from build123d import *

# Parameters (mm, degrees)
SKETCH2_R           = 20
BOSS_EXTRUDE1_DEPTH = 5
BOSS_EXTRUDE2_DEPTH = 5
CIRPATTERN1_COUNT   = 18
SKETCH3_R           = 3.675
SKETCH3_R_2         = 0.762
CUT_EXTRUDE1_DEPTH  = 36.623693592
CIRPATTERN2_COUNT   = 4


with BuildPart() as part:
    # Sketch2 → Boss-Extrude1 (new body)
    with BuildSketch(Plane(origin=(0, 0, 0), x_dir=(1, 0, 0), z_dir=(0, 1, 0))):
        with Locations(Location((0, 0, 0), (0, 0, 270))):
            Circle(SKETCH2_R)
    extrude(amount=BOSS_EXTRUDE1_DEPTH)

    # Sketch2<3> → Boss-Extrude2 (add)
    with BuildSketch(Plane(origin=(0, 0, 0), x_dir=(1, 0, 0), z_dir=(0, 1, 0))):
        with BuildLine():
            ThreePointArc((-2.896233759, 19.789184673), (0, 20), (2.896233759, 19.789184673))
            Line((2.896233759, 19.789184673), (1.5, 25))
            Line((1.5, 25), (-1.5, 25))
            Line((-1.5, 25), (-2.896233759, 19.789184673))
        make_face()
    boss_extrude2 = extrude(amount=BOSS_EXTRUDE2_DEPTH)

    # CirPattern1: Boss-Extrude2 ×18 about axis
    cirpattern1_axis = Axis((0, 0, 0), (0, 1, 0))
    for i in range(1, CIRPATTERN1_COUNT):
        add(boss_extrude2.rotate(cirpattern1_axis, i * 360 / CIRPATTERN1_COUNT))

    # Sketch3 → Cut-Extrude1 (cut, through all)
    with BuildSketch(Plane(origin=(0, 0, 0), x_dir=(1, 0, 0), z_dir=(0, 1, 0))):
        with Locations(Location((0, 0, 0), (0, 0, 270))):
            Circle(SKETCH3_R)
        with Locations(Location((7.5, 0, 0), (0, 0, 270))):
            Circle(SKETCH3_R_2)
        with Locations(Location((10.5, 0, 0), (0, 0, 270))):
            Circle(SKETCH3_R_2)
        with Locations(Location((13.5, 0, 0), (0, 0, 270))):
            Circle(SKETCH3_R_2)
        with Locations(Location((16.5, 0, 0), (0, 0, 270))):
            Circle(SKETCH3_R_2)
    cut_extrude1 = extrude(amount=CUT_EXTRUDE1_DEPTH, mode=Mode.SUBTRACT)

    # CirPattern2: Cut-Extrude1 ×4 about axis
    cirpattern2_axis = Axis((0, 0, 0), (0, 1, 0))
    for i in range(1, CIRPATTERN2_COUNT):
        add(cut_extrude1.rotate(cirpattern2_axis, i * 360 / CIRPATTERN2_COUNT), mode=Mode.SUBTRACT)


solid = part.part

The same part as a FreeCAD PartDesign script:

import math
import FreeCAD as App
import Part
import Sketcher
Q = App.Units.Quantity

doc = App.newDocument("Part")
body = doc.addObject("PartDesign::Body", "Body")

sketch1 = body.newObject("Sketcher::SketchObject", "Sketch")
sketch1.AttachmentSupport = (doc.getObject("XZ_Plane"), [""])
sketch1.MapMode = "FlatFace"
sketch1.addGeometry(Part.Circle(App.Vector(0, 0, 0), App.Vector(0, 0, 1), 20), False)
sketch1.addConstraint([
    Sketcher.Constraint("Coincident", 0, 3, -1, 1),
    Sketcher.Constraint("Diameter", 0, Q("40 mm")),
])
pad1 = body.newObject("PartDesign::Pad", "Pad")
pad1.Profile = sketch1
pad1.Length = 5
pad1.Reversed = True

sketch2 = body.newObject("Sketcher::SketchObject", "Sketch001")
sketch2.AttachmentSupport = (doc.getObject("XZ_Plane"), [""])
sketch2.MapMode = "FlatFace"
sketch2.addGeometry([
    Part.ArcOfCircle(Part.Circle(App.Vector(0, 0, 0), App.Vector(0, 0, 1), 20), math.radians(-98.326375), math.radians(-81.673625)),
    Part.LineSegment(App.Vector(2.896234, -19.789185, 0), App.Vector(1.5, -25, 0)),
    Part.LineSegment(App.Vector(1.5, -25, 0), App.Vector(-1.5, -25, 0)),
    Part.LineSegment(App.Vector(-1.5, -25, 0), App.Vector(-2.896234, -19.789185, 0)),
], False)
sketch2.addConstraint([
    Sketcher.Constraint("Coincident", 0, 2, 1, 1),
    Sketcher.Constraint("Coincident", 1, 2, 2, 1),
    Sketcher.Constraint("Coincident", 2, 2, 3, 1),
    Sketcher.Constraint("Coincident", 3, 2, 0, 1),
    Sketcher.Constraint("Horizontal", 2),
    Sketcher.Constraint("Coincident", 0, 3, -1, 1),
    Sketcher.Constraint("Horizontal", 0, 2, 3, 2),
    Sketcher.Constraint("Equal", 1, 3),
    Sketcher.Constraint("Radius", 0, Q("20 mm")),
    Sketcher.Constraint("DistanceX", 2, 2, 2, 1, Q("3 mm")),
    Sketcher.Constraint("Angle", 1, Q("-105 deg")),
    Sketcher.Constraint("DistanceY", 1, 2, -1, 1, Q("25 mm")),
])
pad2 = body.newObject("PartDesign::Pad", "Pad001")
pad2.Profile = sketch2
pad2.Length = 5
pad2.Reversed = True
doc.recompute()

polarpattern = body.newObject("PartDesign::PolarPattern", "PolarPattern")
polarpattern.Originals = [pad2]
polarpattern.Axis = (doc.getObject("Y_Axis"), [""])
polarpattern.Angle = 360
polarpattern.Occurrences = 18
body.Tip = polarpattern

sketch3 = body.newObject("Sketcher::SketchObject", "Sketch002")
sketch3.AttachmentSupport = (doc.getObject("XZ_Plane"), [""])
sketch3.MapMode = "FlatFace"
sketch3.addGeometry([
    Part.Circle(App.Vector(0, 0, 0), App.Vector(0, 0, 1), 3.675),
    Part.Circle(App.Vector(7.5, 0, 0), App.Vector(0, 0, 1), 0.762),
    Part.Circle(App.Vector(10.5, 0, 0), App.Vector(0, 0, 1), 0.762),
    Part.Circle(App.Vector(13.5, 0, 0), App.Vector(0, 0, 1), 0.762),
    Part.Circle(App.Vector(16.5, 0, 0), App.Vector(0, 0, 1), 0.762),
], False)
sketch3.addConstraint([
    Sketcher.Constraint("Coincident", 0, 3, -1, 1),
    Sketcher.Constraint("Equal", 1, 2),
    Sketcher.Constraint("Equal", 2, 3),
    Sketcher.Constraint("Equal", 3, 4),
    Sketcher.Constraint("PointOnObject", 1, 3, -1),
    Sketcher.Constraint("PointOnObject", 2, 3, -1),
    Sketcher.Constraint("PointOnObject", 3, 3, -1),
    Sketcher.Constraint("PointOnObject", 4, 3, -1),
    Sketcher.Constraint("Diameter", 0, Q("7.35 mm")),
    Sketcher.Constraint("Diameter", 1, Q("1.524 mm")),
    Sketcher.Constraint("DistanceX", 1, 3, 2, 3, Q("3 mm")),
    Sketcher.Constraint("DistanceX", 2, 3, 3, 3, Q("3 mm")),
    Sketcher.Constraint("DistanceX", 3, 3, 4, 3, Q("3 mm")),
    Sketcher.Constraint("DistanceX", -1, 1, 1, 3, Q("7.5 mm")),
])
pocket1 = body.newObject("PartDesign::Pocket", "Pocket")
pocket1.Profile = sketch3
pocket1.Type = "ThroughAll"
doc.recompute()

polarpattern2 = body.newObject("PartDesign::PolarPattern", "PolarPattern001")
polarpattern2.Originals = [pocket1]
polarpattern2.Axis = (doc.getObject("Y_Axis"), [""])
polarpattern2.Angle = 360
polarpattern2.Occurrences = 4
body.Tip = polarpattern2

doc.recompute()
